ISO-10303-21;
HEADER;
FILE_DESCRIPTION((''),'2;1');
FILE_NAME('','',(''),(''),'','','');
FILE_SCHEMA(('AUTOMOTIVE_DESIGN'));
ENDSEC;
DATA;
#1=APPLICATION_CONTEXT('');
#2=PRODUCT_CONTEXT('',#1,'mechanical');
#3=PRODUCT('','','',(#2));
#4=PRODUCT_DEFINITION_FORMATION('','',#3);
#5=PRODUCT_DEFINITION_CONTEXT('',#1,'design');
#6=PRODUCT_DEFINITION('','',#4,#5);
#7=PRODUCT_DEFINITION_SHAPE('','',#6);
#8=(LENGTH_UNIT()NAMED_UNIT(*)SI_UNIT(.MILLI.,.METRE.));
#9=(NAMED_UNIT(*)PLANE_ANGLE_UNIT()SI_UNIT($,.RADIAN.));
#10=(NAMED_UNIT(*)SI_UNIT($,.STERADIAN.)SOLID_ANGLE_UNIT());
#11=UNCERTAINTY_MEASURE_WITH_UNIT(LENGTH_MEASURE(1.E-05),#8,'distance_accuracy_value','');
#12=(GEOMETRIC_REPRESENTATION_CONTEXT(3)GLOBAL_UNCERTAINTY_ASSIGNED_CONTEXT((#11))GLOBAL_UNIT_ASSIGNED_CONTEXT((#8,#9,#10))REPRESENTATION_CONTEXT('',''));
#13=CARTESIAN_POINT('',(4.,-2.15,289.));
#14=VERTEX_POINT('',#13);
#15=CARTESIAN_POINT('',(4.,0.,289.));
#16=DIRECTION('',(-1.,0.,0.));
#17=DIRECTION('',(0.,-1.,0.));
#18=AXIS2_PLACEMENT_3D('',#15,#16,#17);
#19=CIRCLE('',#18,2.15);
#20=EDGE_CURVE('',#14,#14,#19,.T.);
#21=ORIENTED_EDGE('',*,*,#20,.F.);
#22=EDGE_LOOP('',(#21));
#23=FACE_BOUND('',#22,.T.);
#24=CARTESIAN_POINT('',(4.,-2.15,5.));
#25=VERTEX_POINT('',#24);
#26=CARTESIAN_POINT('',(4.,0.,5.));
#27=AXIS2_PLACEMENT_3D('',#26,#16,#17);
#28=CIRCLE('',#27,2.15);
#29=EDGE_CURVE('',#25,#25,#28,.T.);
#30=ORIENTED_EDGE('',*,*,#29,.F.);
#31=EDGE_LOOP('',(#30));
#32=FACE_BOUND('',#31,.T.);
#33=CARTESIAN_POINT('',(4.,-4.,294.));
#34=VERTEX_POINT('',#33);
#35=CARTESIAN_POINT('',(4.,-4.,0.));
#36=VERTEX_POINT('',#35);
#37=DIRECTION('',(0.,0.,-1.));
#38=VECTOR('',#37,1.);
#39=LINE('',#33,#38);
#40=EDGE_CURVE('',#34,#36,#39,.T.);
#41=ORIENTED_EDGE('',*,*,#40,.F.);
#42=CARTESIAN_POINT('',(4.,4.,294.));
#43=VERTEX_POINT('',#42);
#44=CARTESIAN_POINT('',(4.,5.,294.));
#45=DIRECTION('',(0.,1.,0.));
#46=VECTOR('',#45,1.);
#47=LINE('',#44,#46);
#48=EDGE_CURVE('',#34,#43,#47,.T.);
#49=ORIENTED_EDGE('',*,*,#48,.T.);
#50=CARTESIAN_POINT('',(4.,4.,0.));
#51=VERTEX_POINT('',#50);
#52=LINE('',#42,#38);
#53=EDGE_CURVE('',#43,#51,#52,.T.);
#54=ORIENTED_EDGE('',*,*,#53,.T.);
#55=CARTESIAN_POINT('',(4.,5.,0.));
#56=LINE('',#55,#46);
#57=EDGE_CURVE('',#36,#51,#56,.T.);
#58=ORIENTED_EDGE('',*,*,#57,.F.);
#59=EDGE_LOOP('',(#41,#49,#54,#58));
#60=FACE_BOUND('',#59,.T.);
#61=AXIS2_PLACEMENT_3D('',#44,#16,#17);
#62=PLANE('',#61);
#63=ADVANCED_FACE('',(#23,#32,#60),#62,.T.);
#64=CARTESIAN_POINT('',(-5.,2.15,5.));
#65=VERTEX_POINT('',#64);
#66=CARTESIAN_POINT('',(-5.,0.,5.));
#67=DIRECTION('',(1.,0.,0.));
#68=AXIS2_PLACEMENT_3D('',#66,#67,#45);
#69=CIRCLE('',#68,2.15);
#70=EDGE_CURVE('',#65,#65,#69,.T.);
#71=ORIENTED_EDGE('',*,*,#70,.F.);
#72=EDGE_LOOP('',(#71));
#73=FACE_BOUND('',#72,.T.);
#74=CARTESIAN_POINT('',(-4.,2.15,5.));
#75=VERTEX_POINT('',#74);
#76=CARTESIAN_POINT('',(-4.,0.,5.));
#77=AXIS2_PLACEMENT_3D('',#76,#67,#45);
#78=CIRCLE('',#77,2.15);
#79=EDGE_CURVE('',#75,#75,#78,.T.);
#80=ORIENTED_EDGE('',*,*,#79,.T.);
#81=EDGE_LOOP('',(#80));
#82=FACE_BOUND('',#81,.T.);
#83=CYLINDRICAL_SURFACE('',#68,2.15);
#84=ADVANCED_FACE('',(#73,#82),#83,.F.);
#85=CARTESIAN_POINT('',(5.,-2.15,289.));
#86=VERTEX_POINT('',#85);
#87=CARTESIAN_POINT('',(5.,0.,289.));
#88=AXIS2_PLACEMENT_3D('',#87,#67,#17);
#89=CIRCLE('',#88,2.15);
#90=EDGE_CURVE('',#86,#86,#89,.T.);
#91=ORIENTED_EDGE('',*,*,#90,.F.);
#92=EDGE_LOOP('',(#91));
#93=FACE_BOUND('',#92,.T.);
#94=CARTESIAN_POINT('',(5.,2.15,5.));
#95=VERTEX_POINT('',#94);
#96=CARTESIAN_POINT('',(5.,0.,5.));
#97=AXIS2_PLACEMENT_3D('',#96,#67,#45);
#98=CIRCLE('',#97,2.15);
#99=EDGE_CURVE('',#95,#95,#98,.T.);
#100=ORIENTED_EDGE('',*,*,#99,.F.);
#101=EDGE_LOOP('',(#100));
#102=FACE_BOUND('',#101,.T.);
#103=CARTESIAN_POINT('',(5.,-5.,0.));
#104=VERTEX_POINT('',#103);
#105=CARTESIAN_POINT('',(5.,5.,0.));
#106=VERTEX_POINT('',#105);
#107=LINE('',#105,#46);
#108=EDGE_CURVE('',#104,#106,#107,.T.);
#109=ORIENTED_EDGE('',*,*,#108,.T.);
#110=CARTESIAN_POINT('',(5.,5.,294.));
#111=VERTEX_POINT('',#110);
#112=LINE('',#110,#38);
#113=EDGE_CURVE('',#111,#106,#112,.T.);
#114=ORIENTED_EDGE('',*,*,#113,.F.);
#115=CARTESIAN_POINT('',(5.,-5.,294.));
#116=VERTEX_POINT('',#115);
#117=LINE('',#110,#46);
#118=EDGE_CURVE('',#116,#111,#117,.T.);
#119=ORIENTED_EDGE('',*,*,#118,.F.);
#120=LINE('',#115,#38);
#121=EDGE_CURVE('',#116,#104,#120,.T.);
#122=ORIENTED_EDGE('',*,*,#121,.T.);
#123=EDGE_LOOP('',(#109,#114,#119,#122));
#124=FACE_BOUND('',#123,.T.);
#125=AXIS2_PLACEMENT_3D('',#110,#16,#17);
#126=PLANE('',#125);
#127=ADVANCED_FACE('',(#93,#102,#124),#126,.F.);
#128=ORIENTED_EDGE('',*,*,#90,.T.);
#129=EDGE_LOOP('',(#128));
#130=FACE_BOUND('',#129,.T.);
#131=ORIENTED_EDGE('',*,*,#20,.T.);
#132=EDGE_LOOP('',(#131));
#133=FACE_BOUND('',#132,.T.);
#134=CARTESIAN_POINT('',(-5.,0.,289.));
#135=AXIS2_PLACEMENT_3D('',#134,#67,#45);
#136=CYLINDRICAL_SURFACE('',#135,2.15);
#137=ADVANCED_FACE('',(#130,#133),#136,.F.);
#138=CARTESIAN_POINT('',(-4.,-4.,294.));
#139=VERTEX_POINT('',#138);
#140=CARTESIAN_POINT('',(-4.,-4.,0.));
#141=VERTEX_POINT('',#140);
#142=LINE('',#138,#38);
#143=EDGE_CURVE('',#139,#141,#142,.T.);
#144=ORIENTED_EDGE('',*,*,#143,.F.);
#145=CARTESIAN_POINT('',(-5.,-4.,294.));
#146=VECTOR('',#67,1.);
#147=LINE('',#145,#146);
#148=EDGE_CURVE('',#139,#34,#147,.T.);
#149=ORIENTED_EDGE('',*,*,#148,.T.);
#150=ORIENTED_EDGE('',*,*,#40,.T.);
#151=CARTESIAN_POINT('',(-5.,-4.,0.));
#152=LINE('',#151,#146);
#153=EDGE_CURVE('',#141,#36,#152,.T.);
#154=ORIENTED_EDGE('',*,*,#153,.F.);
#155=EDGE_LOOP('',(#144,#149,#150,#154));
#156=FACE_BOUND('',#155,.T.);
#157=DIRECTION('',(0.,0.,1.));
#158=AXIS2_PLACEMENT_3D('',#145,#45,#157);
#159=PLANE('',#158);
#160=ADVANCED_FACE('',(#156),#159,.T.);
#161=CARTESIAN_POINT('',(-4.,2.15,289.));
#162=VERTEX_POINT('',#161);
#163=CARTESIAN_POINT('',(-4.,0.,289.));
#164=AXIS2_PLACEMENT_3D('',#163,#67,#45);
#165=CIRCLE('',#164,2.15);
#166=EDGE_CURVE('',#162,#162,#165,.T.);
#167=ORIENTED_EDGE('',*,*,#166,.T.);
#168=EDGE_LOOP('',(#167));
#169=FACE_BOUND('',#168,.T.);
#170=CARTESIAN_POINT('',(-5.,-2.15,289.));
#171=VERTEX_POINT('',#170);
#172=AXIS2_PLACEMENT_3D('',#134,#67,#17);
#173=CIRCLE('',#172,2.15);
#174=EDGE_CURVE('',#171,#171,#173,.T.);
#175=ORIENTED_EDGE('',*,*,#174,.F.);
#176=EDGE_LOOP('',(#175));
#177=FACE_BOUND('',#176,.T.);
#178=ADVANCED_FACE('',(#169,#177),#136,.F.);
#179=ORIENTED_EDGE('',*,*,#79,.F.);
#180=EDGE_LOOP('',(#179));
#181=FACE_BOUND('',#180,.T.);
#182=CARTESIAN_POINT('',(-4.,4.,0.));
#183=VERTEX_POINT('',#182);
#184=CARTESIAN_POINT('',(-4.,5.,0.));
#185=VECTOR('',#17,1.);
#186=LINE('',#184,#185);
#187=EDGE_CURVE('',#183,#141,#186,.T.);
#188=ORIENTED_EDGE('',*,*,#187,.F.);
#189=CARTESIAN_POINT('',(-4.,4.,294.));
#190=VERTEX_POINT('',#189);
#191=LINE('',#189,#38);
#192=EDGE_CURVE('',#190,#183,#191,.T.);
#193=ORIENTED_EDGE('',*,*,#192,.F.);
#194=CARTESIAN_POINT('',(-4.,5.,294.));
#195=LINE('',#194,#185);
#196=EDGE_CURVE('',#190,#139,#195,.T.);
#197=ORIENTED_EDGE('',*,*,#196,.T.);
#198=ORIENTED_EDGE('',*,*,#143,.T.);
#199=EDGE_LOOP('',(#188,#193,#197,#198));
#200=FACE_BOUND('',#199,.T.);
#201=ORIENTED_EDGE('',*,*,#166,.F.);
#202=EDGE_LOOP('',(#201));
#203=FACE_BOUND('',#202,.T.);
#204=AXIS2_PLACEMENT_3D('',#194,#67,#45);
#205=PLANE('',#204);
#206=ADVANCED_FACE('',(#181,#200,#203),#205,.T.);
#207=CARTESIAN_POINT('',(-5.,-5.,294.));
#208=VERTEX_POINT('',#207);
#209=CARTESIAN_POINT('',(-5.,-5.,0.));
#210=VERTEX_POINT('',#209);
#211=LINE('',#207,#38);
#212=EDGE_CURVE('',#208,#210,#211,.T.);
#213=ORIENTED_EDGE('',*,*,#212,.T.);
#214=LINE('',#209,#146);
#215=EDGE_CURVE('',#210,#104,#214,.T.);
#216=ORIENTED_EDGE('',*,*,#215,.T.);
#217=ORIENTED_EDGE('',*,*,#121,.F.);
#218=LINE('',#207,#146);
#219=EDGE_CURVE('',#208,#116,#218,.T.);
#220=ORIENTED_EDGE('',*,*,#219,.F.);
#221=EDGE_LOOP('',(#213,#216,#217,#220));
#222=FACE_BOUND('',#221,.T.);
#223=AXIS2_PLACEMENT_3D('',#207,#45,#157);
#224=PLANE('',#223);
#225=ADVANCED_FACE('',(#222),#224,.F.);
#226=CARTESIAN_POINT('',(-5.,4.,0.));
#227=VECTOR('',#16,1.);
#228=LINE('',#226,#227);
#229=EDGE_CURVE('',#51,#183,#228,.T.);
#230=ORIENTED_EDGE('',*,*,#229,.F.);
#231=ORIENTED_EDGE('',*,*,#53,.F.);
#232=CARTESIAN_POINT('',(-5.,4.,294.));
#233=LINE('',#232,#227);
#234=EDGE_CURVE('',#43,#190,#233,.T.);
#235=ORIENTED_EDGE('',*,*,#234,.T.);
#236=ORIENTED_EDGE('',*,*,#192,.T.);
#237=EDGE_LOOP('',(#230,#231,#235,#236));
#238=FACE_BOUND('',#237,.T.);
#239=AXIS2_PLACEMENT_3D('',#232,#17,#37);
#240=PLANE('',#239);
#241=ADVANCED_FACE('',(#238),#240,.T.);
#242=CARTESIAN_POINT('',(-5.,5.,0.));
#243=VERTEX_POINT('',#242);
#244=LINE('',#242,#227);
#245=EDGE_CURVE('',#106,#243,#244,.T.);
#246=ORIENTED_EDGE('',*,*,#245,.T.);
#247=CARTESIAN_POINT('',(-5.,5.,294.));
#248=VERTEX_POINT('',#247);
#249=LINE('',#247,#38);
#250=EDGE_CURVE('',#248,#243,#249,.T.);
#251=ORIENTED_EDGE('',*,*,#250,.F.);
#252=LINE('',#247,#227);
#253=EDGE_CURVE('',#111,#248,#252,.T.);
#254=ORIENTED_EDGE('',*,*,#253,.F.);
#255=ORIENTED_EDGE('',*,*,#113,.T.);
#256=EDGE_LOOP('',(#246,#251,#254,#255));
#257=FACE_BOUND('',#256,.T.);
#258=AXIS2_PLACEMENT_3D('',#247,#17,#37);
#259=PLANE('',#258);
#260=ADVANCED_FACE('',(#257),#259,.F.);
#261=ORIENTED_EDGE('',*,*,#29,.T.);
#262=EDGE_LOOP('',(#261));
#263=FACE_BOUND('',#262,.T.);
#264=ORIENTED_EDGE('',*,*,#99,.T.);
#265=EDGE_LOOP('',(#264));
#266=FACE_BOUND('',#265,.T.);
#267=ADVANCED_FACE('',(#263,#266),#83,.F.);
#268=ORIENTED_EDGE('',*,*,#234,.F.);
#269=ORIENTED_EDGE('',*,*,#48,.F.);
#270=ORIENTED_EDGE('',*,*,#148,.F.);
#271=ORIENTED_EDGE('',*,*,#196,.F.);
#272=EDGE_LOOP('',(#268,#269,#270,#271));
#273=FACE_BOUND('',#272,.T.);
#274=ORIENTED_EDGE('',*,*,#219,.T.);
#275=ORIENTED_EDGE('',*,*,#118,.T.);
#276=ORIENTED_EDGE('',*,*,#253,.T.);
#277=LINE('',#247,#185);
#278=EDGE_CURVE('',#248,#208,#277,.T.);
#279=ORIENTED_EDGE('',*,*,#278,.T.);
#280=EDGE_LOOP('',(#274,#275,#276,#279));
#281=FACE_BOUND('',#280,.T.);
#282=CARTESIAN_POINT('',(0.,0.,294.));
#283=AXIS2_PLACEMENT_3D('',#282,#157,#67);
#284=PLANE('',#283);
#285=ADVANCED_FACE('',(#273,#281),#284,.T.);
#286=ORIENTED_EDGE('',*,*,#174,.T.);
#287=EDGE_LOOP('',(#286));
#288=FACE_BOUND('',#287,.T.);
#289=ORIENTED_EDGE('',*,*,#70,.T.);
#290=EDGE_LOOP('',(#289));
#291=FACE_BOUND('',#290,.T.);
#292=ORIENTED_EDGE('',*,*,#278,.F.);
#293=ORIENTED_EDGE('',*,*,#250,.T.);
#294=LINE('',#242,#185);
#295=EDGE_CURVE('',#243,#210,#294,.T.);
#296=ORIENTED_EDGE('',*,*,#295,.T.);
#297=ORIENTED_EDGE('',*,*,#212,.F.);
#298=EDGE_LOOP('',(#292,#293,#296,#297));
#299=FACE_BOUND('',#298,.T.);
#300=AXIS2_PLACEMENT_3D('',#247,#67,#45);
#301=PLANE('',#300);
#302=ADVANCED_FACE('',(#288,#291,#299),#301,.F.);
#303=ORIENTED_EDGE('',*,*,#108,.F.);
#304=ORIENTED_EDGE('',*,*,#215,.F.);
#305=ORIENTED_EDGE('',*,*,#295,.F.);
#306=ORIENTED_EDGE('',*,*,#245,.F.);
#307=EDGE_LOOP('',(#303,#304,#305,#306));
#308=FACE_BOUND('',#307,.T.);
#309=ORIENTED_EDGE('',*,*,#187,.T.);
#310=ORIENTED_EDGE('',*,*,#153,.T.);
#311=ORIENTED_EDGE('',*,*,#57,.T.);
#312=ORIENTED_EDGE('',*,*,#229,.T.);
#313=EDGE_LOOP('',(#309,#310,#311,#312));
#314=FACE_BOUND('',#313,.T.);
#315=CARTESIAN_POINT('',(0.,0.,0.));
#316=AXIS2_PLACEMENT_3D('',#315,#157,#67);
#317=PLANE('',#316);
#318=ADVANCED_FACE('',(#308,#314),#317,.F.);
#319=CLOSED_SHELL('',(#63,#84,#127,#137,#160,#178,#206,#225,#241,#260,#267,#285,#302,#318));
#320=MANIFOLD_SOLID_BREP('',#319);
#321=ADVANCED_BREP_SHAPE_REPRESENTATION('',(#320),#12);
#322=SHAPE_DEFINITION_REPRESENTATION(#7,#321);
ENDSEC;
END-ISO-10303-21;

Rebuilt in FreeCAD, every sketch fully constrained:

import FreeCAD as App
import Part
import Sketcher

V = App.Vector

doc = App.newDocument("Part")
params = doc.addObject("Spreadsheet::Sheet", "Params")
for row, (alias, value) in enumerate([
    ("sketch1_width", "10 mm"),
    ("sketch1_width2", "8 mm"),
    ("pad1_length", "294 mm"),
    ("sketch2_diameter", "4.3 mm"),
], start=1):
    params.set(f"A{row}", alias)
    params.set(f"B{row}", "=" + value)
    params.setAlias(f"B{row}", alias)

body = doc.addObject("PartDesign::Body", "Body")

# Sketch on XY plane
sketch1 = body.newObject("Sketcher::SketchObject", "Sketch")
sketch1.AttachmentSupport = (doc.getObject("XY_Plane"), [""])
sketch1.MapMode = "FlatFace"
sketch1.addGeometry([
    Part.LineSegment(V(-5, 5, 0), V(-5, -5, 0)),  # 0
    Part.LineSegment(V(-5, -5, 0), V(5, -5, 0)),  # 1
    Part.LineSegment(V(5, -5, 0), V(5, 5, 0)),  # 2
    Part.LineSegment(V(5, 5, 0), V(-5, 5, 0)),  # 3
    Part.LineSegment(V(4, -4, 0), V(-4, -4, 0)),  # 4
    Part.LineSegment(V(-4, -4, 0), V(-4, 4, 0)),  # 5
    Part.LineSegment(V(-4, 4, 0), V(4, 4, 0)),  # 6
    Part.LineSegment(V(4, 4, 0), V(4, -4, 0)),  # 7
], False)
sketch1.addConstraint([
    Sketcher.Constraint("Coincident", 0, 2, 1, 1),
    Sketcher.Constraint("Coincident", 1, 2, 2, 1),
    Sketcher.Constraint("Coincident", 2, 2, 3, 1),
    Sketcher.Constraint("Coincident", 3, 2, 0, 1),
    Sketcher.Constraint("Coincident", 4, 2, 5, 1),
    Sketcher.Constraint("Coincident", 5, 2, 6, 1),
    Sketcher.Constraint("Coincident", 6, 2, 7, 1),
    Sketcher.Constraint("Coincident", 7, 2, 4, 1),
    Sketcher.Constraint("Vertical", 0),
    Sketcher.Constraint("Horizontal", 1),
    Sketcher.Constraint("Vertical", 2),
    Sketcher.Constraint("Horizontal", 3),
    Sketcher.Constraint("Horizontal", 4),
    Sketcher.Constraint("Vertical", 5),
    Sketcher.Constraint("Horizontal", 6),
    Sketcher.Constraint("Vertical", 7),
    Sketcher.Constraint("Symmetric", 0, 2, 2, 2, -1, 1),
    Sketcher.Constraint("Symmetric", 4, 2, 6, 2, -1, 1),
    Sketcher.Constraint("Equal", 3, 0),
    Sketcher.Constraint("Equal", 6, 5),
    Sketcher.Constraint("DistanceX", 1, 1, 1, 2, 10.0),
    Sketcher.Constraint("DistanceX", 4, 2, 4, 1, 8.0),
])
sketch1.setExpression("Constraints[20]", "Params.sketch1_width")
sketch1.setExpression("Constraints[21]", "Params.sketch1_width2")
pad1 = body.newObject("PartDesign::Pad", "Pad")
pad1.Profile = sketch1
pad1.setExpression("Length", "Params.pad1_length")

# Sketch on YZ plane
sketch2 = body.newObject("Sketcher::SketchObject", "Sketch001")
sketch2.AttachmentSupport = (doc.getObject("YZ_Plane"), [""])
sketch2.MapMode = "FlatFace"
sketch2.AttachmentOffset = App.Placement(V(0, 0, 5), App.Rotation())
sketch2.addGeometry([
    Part.Circle(V(0, 5, 0), V(0, 0, 1), 2.1),
    Part.Circle(V(0, 289, 0), V(0, 0, 1), 2.1),
], False)
sketch2.addConstraint([
    Sketcher.Constraint("Equal", 0, 1),
    Sketcher.Constraint("PointOnObject", 0, 3, -2),
    Sketcher.Constraint("PointOnObject", 1, 3, -2),
    Sketcher.Constraint("Diameter", 0, 4.3),
    Sketcher.Constraint("DistanceY", -1, 1, 0, 3, 5.0),
    Sketcher.Constraint("DistanceY", -1, 1, 1, 3, 289.0),
])
sketch2.setExpression("Constraints[3]", "Params.sketch2_diameter")
pocket1 = body.newObject("PartDesign::Pocket", "Pocket")
pocket1.Profile = sketch2
pocket1.Type = "ThroughAll"

doc.recompute()
